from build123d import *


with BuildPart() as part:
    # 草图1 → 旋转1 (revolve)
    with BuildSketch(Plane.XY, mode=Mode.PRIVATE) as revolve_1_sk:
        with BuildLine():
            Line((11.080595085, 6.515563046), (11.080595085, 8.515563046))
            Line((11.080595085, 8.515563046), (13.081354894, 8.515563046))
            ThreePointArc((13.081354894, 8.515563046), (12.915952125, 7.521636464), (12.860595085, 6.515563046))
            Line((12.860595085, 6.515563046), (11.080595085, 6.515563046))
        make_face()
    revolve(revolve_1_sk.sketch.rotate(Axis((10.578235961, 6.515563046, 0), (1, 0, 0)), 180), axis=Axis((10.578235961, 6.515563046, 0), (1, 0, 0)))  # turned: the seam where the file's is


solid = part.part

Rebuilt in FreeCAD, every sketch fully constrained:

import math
import FreeCAD as App
import Part
import Sketcher
Q = App.Units.Quantity

doc = App.newDocument("Part")
body = doc.addObject("PartDesign::Body", "Body")

# Sketch on XY plane
sketch1 = body.newObject("Sketcher::SketchObject", "Sketch")
sketch1.AttachmentSupport = (doc.getObject("XY_Plane"), [""])
sketch1.MapMode = "FlatFace"
sketch1.addGeometry([
    Part.LineSegment(App.Vector(11.1, 8.5, 0), App.Vector(11.1, 6.5, 0)),
    Part.LineSegment(App.Vector(11.1, 6.5, 0), App.Vector(12.9, 6.5, 0)),
    Part.ArcOfCircle(Part.Circle(App.Vector(22, 6.5, 0), App.Vector(0, 0, 1), 9.2), math.radians(167.4), math.radians(180)),
    Part.LineSegment(App.Vector(13.1, 8.5, 0), App.Vector(11.1, 8.5, 0)),
], False)
sketch1.addGeometry(Part.LineSegment(App.Vector(11.1, 6.5, 0), App.Vector(22, 6.5, 0)), True)  # axis
sketch1.addConstraint([
    Sketcher.Constraint("Coincident", 0, 2, 1, 1),
    Sketcher.Constraint("Coincident", 1, 2, 2, 2),
    Sketcher.Constraint("Coincident", 2, 1, 3, 1),
    Sketcher.Constraint("Coincident", 3, 2, 0, 1),
    Sketcher.Constraint("Vertical", 0),
    Sketcher.Constraint("Horizontal", 1),
    Sketcher.Constraint("Horizontal", 3),
    Sketcher.Constraint("Horizontal", 4),
    Sketcher.Constraint("Coincident", 4, 1, 0, 2),
    Sketcher.Constraint("Coincident", 4, 2, 2, 3),
    Sketcher.Constraint("DistanceY", 0, 2, 0, 1, Q("2 mm")),
    Sketcher.Constraint("Radius", 2, Q("9.17 mm")),
    Sketcher.Constraint("DistanceX", 1, 1, 1, 2, Q("1.78 mm")),
    Sketcher.Constraint("DistanceX", -1, 1, 2, 3, Q("22.030595 mm")),
    Sketcher.Constraint("DistanceY", -1, 1, 2, 3, Q("6.515563 mm")),
])
revolution = body.newObject("PartDesign::Revolution", "Revolution")
revolution.Profile = sketch1
revolution.ReferenceAxis = (sketch1, ["Axis0"])
revolution.Angle = 360

doc.recompute()
